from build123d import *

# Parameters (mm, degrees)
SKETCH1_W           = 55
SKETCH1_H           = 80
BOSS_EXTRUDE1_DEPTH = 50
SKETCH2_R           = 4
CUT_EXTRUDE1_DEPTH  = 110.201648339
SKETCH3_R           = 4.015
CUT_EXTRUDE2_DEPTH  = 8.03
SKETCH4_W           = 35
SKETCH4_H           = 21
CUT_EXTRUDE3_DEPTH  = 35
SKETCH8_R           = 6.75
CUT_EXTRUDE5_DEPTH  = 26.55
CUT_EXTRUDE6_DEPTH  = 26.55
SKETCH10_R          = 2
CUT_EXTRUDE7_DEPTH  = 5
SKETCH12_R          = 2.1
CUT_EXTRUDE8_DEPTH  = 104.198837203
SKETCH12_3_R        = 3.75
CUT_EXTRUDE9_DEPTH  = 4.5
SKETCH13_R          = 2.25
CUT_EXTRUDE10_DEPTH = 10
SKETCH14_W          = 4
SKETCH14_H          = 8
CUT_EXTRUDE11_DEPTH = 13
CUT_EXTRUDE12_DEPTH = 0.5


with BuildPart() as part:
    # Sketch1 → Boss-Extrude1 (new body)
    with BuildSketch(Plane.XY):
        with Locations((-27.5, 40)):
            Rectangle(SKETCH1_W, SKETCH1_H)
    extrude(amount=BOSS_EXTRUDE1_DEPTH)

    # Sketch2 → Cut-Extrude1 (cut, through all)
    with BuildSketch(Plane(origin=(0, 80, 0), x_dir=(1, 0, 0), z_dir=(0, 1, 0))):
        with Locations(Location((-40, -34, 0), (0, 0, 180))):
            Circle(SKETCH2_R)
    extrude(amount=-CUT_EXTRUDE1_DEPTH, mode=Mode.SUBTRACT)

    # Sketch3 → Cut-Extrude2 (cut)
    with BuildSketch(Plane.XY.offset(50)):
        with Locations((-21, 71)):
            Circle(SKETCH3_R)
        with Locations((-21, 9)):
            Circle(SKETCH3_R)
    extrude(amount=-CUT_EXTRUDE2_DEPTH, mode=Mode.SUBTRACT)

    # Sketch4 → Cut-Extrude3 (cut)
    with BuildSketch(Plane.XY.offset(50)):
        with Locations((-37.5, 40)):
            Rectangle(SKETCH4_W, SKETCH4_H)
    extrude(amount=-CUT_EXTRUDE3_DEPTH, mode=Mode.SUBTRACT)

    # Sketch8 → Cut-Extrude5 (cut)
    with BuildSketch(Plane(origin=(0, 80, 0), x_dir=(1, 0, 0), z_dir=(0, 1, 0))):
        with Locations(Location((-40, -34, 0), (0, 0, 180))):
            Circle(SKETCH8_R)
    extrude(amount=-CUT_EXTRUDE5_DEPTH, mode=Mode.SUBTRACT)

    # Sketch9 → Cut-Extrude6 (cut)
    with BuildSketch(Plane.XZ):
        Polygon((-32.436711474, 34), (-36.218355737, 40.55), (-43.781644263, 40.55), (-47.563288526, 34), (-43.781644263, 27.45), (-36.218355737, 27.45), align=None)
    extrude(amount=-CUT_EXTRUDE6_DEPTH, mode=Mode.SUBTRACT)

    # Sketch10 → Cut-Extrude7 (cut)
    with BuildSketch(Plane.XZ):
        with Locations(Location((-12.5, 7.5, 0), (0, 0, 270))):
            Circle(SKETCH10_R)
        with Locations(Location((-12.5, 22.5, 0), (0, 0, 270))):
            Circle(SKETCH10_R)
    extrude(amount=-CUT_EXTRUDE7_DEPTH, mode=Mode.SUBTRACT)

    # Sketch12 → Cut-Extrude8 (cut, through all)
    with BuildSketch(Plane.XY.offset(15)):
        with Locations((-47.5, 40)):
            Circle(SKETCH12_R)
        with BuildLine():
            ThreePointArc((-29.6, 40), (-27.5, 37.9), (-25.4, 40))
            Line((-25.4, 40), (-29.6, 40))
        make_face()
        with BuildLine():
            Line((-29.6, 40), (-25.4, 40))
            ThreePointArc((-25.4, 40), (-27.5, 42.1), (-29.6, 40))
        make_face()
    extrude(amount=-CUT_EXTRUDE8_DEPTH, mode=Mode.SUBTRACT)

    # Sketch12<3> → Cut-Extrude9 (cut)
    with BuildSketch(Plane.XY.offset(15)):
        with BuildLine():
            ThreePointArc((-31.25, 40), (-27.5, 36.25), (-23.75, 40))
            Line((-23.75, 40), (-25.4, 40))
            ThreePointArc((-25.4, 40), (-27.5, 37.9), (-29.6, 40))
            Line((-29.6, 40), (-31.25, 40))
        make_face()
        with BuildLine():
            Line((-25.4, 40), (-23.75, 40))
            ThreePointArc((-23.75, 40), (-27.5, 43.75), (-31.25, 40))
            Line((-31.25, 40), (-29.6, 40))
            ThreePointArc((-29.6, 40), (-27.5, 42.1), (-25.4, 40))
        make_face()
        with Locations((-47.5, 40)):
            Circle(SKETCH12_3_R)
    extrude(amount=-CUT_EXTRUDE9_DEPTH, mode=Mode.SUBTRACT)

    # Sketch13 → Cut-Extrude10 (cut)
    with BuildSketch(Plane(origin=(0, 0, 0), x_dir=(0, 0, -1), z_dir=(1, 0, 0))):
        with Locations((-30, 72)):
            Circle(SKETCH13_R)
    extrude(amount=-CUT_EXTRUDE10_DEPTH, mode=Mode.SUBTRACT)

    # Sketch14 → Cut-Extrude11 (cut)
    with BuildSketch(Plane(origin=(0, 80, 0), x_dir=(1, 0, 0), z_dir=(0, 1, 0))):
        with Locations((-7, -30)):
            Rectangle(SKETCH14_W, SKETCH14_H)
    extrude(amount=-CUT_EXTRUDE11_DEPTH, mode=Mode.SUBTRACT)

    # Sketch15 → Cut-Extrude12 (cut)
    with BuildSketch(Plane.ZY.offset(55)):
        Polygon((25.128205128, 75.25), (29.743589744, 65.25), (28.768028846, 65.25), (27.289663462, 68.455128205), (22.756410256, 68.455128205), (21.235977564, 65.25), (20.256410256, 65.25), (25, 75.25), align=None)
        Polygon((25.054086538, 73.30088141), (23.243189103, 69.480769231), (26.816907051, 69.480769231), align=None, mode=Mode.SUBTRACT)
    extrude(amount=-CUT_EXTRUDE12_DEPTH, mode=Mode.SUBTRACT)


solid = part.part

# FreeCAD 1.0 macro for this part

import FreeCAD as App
import Part
import Sketcher
from FreeCAD import Vector
Q = App.Units.Quantity

doc = App.newDocument("Part")
params = doc.addObject("Spreadsheet::Sheet", "Params")
for row, (alias, value) in enumerate([
    ("sketch1_width", "55 mm"),
    ("sketch1_height", "80 mm"),
    ("pad1_length", "50 mm"),
    ("sketch2_diameter", "8 mm"),
    ("sketch3_diameter", "8.03 mm"),
    ("pocket2_length", "8.03 mm"),
    ("sketch4_width", "35 mm"),
    ("sketch4_height", "21 mm"),
    ("pocket3_length", "35 mm"),
    ("sketch5_diameter", "13.5 mm"),
    ("pocket4_length", "26.55 mm"),
    ("pocket5_length", "26.55 mm"),
    ("sketch7_diameter", "4 mm"),
    ("pocket6_length", "5 mm"),
    ("sketch8_diameter", "4.2 mm"),
    ("sketch9_diameter", "7.5 mm"),
    ("sketch9_diameter2", "4.2 mm"),
    ("pocket8_length", "4.5 mm"),
    ("sketch10_diameter", "4.5 mm"),
    ("pocket9_length", "10 mm"),
    ("sketch11_width", "4 mm"),
    ("sketch11_height", "8 mm"),
    ("pocket10_length", "13 mm"),
    ("pocket11_length", "0.5 mm"),
], start=1):
    params.set(f"A{row}", alias)
    params.set(f"B{row}", "=" + value)
    params.setAlias(f"B{row}", alias)

body = doc.addObject("PartDesign::Body", "Body")

# Sketch on XY plane
sketch1 = body.newObject("Sketcher::SketchObject", "Sketch")
sketch1.AttachmentSupport = (doc.getObject("XY_Plane"), [""])
sketch1.MapMode = "FlatFace"
sketch1.addGeometry([
    Part.LineSegment(Vector(-55, 80, 0), Vector(-55, 0, 0)),
    Part.LineSegment(Vector(-55, 0, 0), Vector(0, 0, 0)),
    Part.LineSegment(Vector(0, 0, 0), Vector(0, 80, 0)),
    Part.LineSegment(Vector(0, 80, 0), Vector(-55, 80, 0)),
], False)
sketch1.addConstraint([
    Sketcher.Constraint("Coincident", 0, 2, 1, 1),
    Sketcher.Constraint("Coincident", 1, 2, 2, 1),
    Sketcher.Constraint("Coincident", 2, 2, 3, 1),
    Sketcher.Constraint("Coincident", 3, 2, 0, 1),
    Sketcher.Constraint("Vertical", 0),
    Sketcher.Constraint("Horizontal", 1),
    Sketcher.Constraint("Vertical", 2),
    Sketcher.Constraint("Horizontal", 3),
    Sketcher.Constraint("Coincident", 1, 2, -1, 1),
    Sketcher.Constraint("DistanceX", 1, 1, 1, 2, Q("55 mm")),
    Sketcher.Constraint("DistanceY", 0, 2, 0, 1, Q("80 mm")),
])
sketch1.setExpression("Constraints[9]", "Params.sketch1_width")
sketch1.setExpression("Constraints[10]", "Params.sketch1_height")
pad1 = body.newObject("PartDesign::Pad", "Pad")
pad1.Profile = sketch1
pad1.setExpression("Length", "Params.pad1_length")

# Sketch on XZ plane
sketch2 = body.newObject("Sketcher::SketchObject", "Sketch001")
sketch2.AttachmentSupport = (doc.getObject("XZ_Plane"), [""])
sketch2.MapMode = "FlatFace"
sketch2.AttachmentOffset = App.Placement(Vector(0, 0, -80), App.Rotation())
sketch2.addGeometry(Part.Circle(Vector(-40, 34, 0), Vector(0, 0, 1), 4), False)
sketch2.addConstraint([
    Sketcher.Constraint("Diameter", 0, Q("8 mm")),
    Sketcher.Constraint("DistanceX", 0, 3, -1, 1, Q("40 mm")),
    Sketcher.Constraint("DistanceY", -1, 1, 0, 3, Q("34 mm")),
])
sketch2.setExpression("Constraints[0]", "Params.sketch2_diameter")
pocket1 = body.newObject("PartDesign::Pocket", "Pocket")
pocket1.Profile = sketch2
pocket1.Type = "ThroughAll"
pocket1.Reversed = True

# Sketch on XY plane
sketch3 = body.newObject("Sketcher::SketchObject", "Sketch002")
sketch3.AttachmentSupport = (doc.getObject("XY_Plane"), [""])
sketch3.MapMode = "FlatFace"
sketch3.AttachmentOffset = App.Placement(Vector(0, 0, 50), App.Rotation())
sketch3.addGeometry([
    Part.Circle(Vector(-21, 71, 0), Vector(0, 0, 1), 4.015),
    Part.Circle(Vector(-21, 9, 0), Vector(0, 0, 1), 4.015),
], False)
sketch3.addConstraint([
    Sketcher.Constraint("Equal", 0, 1),
    Sketcher.Constraint("Vertical", 0, 3, 1, 3),
    Sketcher.Constraint("Diameter", 0, Q("8.03 mm")),
    Sketcher.Constraint("DistanceX", 0, 3, -1, 1, Q("21 mm")),
    Sketcher.Constraint("DistanceY", -1, 1, 0, 3, Q("71 mm")),
    Sketcher.Constraint("DistanceY", -1, 1, 1, 3, Q("9 mm")),
])
sketch3.setExpression("Constraints[2]", "Params.sketch3_diameter")
pocket2 = body.newObject("PartDesign::Pocket", "Pocket001")
pocket2.Profile = sketch3
pocket2.setExpression("Length", "Params.pocket2_length")

# Sketch on XY plane
sketch4 = body.newObject("Sketcher::SketchObject", "Sketch003")
sketch4.AttachmentSupport = (doc.getObject("XY_Plane"), [""])
sketch4.MapMode = "FlatFace"
sketch4.AttachmentOffset = App.Placement(Vector(0, 0, 50), App.Rotation())
sketch4.addGeometry([
    Part.LineSegment(Vector(-55, 50.5, 0), Vector(-55, 29.5, 0)),
    Part.LineSegment(Vector(-55, 29.5, 0), Vector(-20, 29.5, 0)),
    Part.LineSegment(Vector(-20, 29.5, 0), Vector(-20, 50.5, 0)),
    Part.LineSegment(Vector(-20, 50.5, 0), Vector(-55, 50.5, 0)),
], False)
sketch4.addConstraint([
    Sketcher.Constraint("Coincident", 0, 2, 1, 1),
    Sketcher.Constraint("Coincident", 1, 2, 2, 1),
    Sketcher.Constraint("Coincident", 2, 2, 3, 1),
    Sketcher.Constraint("Coincident", 3, 2, 0, 1),
    Sketcher.Constraint("Vertical", 0),
    Sketcher.Constraint("Horizontal", 1),
    Sketcher.Constraint("Vertical", 2),
    Sketcher.Constraint("Horizontal", 3),
    Sketcher.Constraint("DistanceX", 1, 1, 1, 2, Q("35 mm")),
    Sketcher.Constraint("DistanceY", 0, 2, 0, 1, Q("21 mm")),
    Sketcher.Constraint("DistanceX", 0, 2, -1, 1, Q("55 mm")),
    Sketcher.Constraint("DistanceY", -1, 1, 0, 2, Q("29.5 mm")),
])
sketch4.setExpression("Constraints[8]", "Params.sketch4_width")
sketch4.setExpression("Constraints[9]", "Params.sketch4_height")
pocket3 = body.newObject("PartDesign::Pocket", "Pocket002")
pocket3.Profile = sketch4
pocket3.setExpression("Length", "Params.pocket3_length")

# Sketch on XZ plane
sketch5 = body.newObject("Sketcher::SketchObject", "Sketch004")
sketch5.AttachmentSupport = (doc.getObject("XZ_Plane"), [""])
sketch5.MapMode = "FlatFace"
sketch5.AttachmentOffset = App.Placement(Vector(0, 0, -80), App.Rotation())
sketch5.addGeometry(Part.Circle(Vector(-40, 34, 0), Vector(0, 0, 1), 6.75), False)
sketch5.addConstraint([
    Sketcher.Constraint("Diameter", 0, Q("13.5 mm")),
    Sketcher.Constraint("DistanceX", 0, 3, -1, 1, Q("40 mm")),
    Sketcher.Constraint("DistanceY", -1, 1, 0, 3, Q("34 mm")),
])
sketch5.setExpression("Constraints[0]", "Params.sketch5_diameter")
pocket4 = body.newObject("PartDesign::Pocket", "Pocket003")
pocket4.Profile = sketch5
pocket4.setExpression("Length", "Params.pocket4_length")
pocket4.Reversed = True

# Sketch on XZ plane
sketch6 = body.newObject("Sketcher::SketchObject", "Sketch005")
sketch6.AttachmentSupport = (doc.getObject("XZ_Plane"), [""])
sketch6.MapMode = "FlatFace"
sketch6.addGeometry([
    Part.LineSegment(Vector(-32.436711, 34, 0), Vector(-36.218356, 40.55, 0)),  # 0
    Part.LineSegment(Vector(-36.218356, 40.55, 0), Vector(-43.781644, 40.55, 0)),  # 1
    Part.LineSegment(Vector(-43.781644, 40.55, 0), Vector(-47.563289, 34, 0)),  # 2
    Part.LineSegment(Vector(-47.563289, 34, 0), Vector(-43.781644, 27.45, 0)),  # 3
    Part.LineSegment(Vector(-43.781644, 27.45, 0), Vector(-36.218356, 27.45, 0)),  # 4
    Part.LineSegment(Vector(-36.218356, 27.45, 0), Vector(-32.436711, 34, 0)),  # 5
], False)
sketch6.addConstraint([
    Sketcher.Constraint("Coincident", 0, 2, 1, 1),
    Sketcher.Constraint("Coincident", 1, 2, 2, 1),
    Sketcher.Constraint("Coincident", 2, 2, 3, 1),
    Sketcher.Constraint("Coincident", 3, 2, 4, 1),
    Sketcher.Constraint("Coincident", 4, 2, 5, 1),
    Sketcher.Constraint("Coincident", 5, 2, 0, 1),
    Sketcher.Constraint("Horizontal", 1),
    Sketcher.Constraint("Horizontal", 4),
    Sketcher.Constraint("Parallel", 0, 3),
    Sketcher.Constraint("Parallel", 2, 5),
    Sketcher.Constraint("Horizontal", 2, 2, 5, 2),
    Sketcher.Constraint("Vertical", 1, 2, 3, 2),
    Sketcher.Constraint("Vertical", 0, 2, 4, 2),
    Sketcher.Constraint("Angle", 0, Q("120 deg")),
    Sketcher.Constraint("DistanceY", -1, 1, 2, 2, Q("34 mm")),
    Sketcher.Constraint("DistanceY", 3, 2, 1, 2, Q("13.1 mm")),
    Sketcher.Constraint("DistanceX", 1, 2, 1, 1, Q("7.563289 mm")),
    Sketcher.Constraint("DistanceX", 2, 2, -1, 1, Q("47.563289 mm")),
])
pocket5 = body.newObject("PartDesign::Pocket", "Pocket004")
pocket5.Profile = sketch6
pocket5.setExpression("Length", "Params.pocket5_length")

# Sketch on XZ plane
sketch7 = body.newObject("Sketcher::SketchObject", "Sketch006")
sketch7.AttachmentSupport = (doc.getObject("XZ_Plane"), [""])
sketch7.MapMode = "FlatFace"
sketch7.addGeometry([
    Part.Circle(Vector(-12.5, 7.5, 0), Vector(0, 0, 1), 2),
    Part.Circle(Vector(-12.5, 22.5, 0), Vector(0, 0, 1), 2),
], False)
sketch7.addConstraint([
    Sketcher.Constraint("Equal", 0, 1),
    Sketcher.Constraint("Vertical", 0, 3, 1, 3),
    Sketcher.Constraint("Diameter", 0, Q("4 mm")),
    Sketcher.Constraint("DistanceY", 0, 3, 1, 3, Q("15 mm")),
    Sketcher.Constraint("DistanceX", 0, 3, -1, 1, Q("12.5 mm")),
    Sketcher.Constraint("DistanceY", -1, 1, 0, 3, Q("7.5 mm")),
])
sketch7.setExpression("Constraints[2]", "Params.sketch7_diameter")
pocket6 = body.newObject("PartDesign::Pocket", "Pocket005")
pocket6.Profile = sketch7
pocket6.setExpression("Length", "Params.pocket6_length")

# Sketch on XY plane
sketch8 = body.newObject("Sketcher::SketchObject", "Sketch007")
sketch8.AttachmentSupport = (doc.getObject("XY_Plane"), [""])
sketch8.MapMode = "FlatFace"
sketch8.AttachmentOffset = App.Placement(Vector(0, 0, 15), App.Rotation())
sketch8.addGeometry([
    Part.Circle(Vector(-47.5, 40, 0), Vector(0, 0, 1), 2.1),
    Part.Circle(Vector(-27.5, 40, 0), Vector(0, 0, 1), 2.1),
], False)
sketch8.addConstraint([
    Sketcher.Constraint("Equal", 0, 1),
    Sketcher.Constraint("Horizontal", 0, 3, 1, 3),
    Sketcher.Constraint("Diameter", 0, Q("4.2 mm")),
    Sketcher.Constraint("DistanceY", -1, 1, 0, 3, Q("40 mm")),
    Sketcher.Constraint("DistanceX", 0, 3, 1, 3, Q("20 mm")),
    Sketcher.Constraint("DistanceX", 0, 3, -1, 1, Q("47.5 mm")),
])
sketch8.setExpression("Constraints[2]", "Params.sketch8_diameter")
pocket7 = body.newObject("PartDesign::Pocket", "Pocket006")
pocket7.Profile = sketch8
pocket7.Type = "ThroughAll"

# Sketch on XY plane
sketch9 = body.newObject("Sketcher::SketchObject", "Sketch008")
sketch9.AttachmentSupport = (doc.getObject("XY_Plane"), [""])
sketch9.MapMode = "FlatFace"
sketch9.AttachmentOffset = App.Placement(Vector(0, 0, 15), App.Rotation())
sketch9.addGeometry([
    Part.Circle(Vector(-27.5, 40, 0), Vector(0, 0, 1), 3.75),
    Part.Circle(Vector(-27.5, 40, 0), Vector(0, 0, 1), 2.1),
    Part.Circle(Vector(-47.5, 40, 0), Vector(0, 0, 1), 3.75),
], False)
sketch9.addConstraint([
    Sketcher.Constraint("Coincident", 1, 3, 0, 3),
    Sketcher.Constraint("Equal", 0, 2),
    Sketcher.Constraint("Horizontal", 1, 3, 2, 3),
    Sketcher.Constraint("Diameter", 0, Q("7.5 mm")),
    Sketcher.Constraint("Diameter", 1, Q("4.2 mm")),
    Sketcher.Constraint("DistanceY", -1, 1, 0, 3, Q("40 mm")),
    Sketcher.Constraint("DistanceX", 2, 3, 0, 3, Q("20 mm")),
    Sketcher.Constraint("DistanceX", 0, 3, -1, 1, Q("27.5 mm")),
])
sketch9.setExpression("Constraints[3]", "Params.sketch9_diameter")
sketch9.setExpression("Constraints[4]", "Params.sketch9_diameter2")
pocket8 = body.newObject("PartDesign::Pocket", "Pocket007")
pocket8.Profile = sketch9
pocket8.setExpression("Length", "Params.pocket8_length")

# Sketch on YZ plane
sketch10 = body.newObject("Sketcher::SketchObject", "Sketch009")
sketch10.AttachmentSupport = (doc.getObject("YZ_Plane"), [""])
sketch10.MapMode = "FlatFace"
sketch10.addGeometry(Part.Circle(Vector(72, 30, 0), Vector(0, 0, 1), 2.25), False)
sketch10.addConstraint([
    Sketcher.Constraint("Diameter", 0, Q("4.5 mm")),
    Sketcher.Constraint("DistanceX", -1, 1, 0, 3, Q("72 mm")),
    Sketcher.Constraint("DistanceY", -1, 1, 0, 3, Q("30 mm")),
])
sketch10.setExpression("Constraints[0]", "Params.sketch10_diameter")
pocket9 = body.newObject("PartDesign::Pocket", "Pocket008")
pocket9.Profile = sketch10
pocket9.setExpression("Length", "Params.pocket9_length")

# Sketch on XZ plane
sketch11 = body.newObject("Sketcher::SketchObject", "Sketch010")
sketch11.AttachmentSupport = (doc.getObject("XZ_Plane"), [""])
sketch11.MapMode = "FlatFace"
sketch11.AttachmentOffset = App.Placement(Vector(0, 0, -80), App.Rotation())
sketch11.addGeometry([
    Part.LineSegment(Vector(-9, 26, 0), Vector(-9, 34, 0)),
    Part.LineSegment(Vector(-9, 34, 0), Vector(-5, 34, 0)),
    Part.LineSegment(Vector(-5, 34, 0), Vector(-5, 26, 0)),
    Part.LineSegment(Vector(-5, 26, 0), Vector(-9, 26, 0)),
], False)
sketch11.addConstraint([
    Sketcher.Constraint("Coincident", 0, 2, 1, 1),
    Sketcher.Constraint("Coincident", 1, 2, 2, 1),
    Sketcher.Constraint("Coincident", 2, 2, 3, 1),
    Sketcher.Constraint("Coincident", 3, 2, 0, 1),
    Sketcher.Constraint("Vertical", 0),
    Sketcher.Constraint("Horizontal", 1),
    Sketcher.Constraint("Vertical", 2),
    Sketcher.Constraint("Horizontal", 3),
    Sketcher.Constraint("DistanceX", 1, 1, 1, 2, Q("4 mm")),
    Sketcher.Constraint("DistanceY", 0, 1, 0, 2, Q("8 mm")),
    Sketcher.Constraint("DistanceX", 0, 2, -1, 1, Q("9 mm")),
    Sketcher.Constraint("DistanceY", -1, 1, 0, 2, Q("34 mm")),
])
sketch11.setExpression("Constraints[8]", "Params.sketch11_width")
sketch11.setExpression("Constraints[9]", "Params.sketch11_height")
pocket10 = body.newObject("PartDesign::Pocket", "Pocket009")
pocket10.Profile = sketch11
pocket10.setExpression("Length", "Params.pocket10_length")
pocket10.Reversed = True

# Sketch on YZ plane
sketch12 = body.newObject("Sketcher::SketchObject", "Sketch011")
sketch12.AttachmentSupport = (doc.getObject("YZ_Plane"), [""])
sketch12.MapMode = "FlatFace"
sketch12.AttachmentOffset = App.Placement(Vector(0, 0, -55), App.Rotation())
sketch12.addGeometry([
    Part.LineSegment(Vector(65.25, 29.74359, 0), Vector(75.25, 25.128205, 0)),  # 0
    Part.LineSegment(Vector(75.25, 25.128205, 0), Vector(75.25, 25, 0)),  # 1
    Part.LineSegment(Vector(75.25, 25, 0), Vector(65.25, 20.25641, 0)),  # 2
    Part.LineSegment(Vector(65.25, 20.25641, 0), Vector(65.25, 21.235978, 0)),  # 3
    Part.LineSegment(Vector(65.25, 21.235978, 0), Vector(68.455128, 22.75641, 0)),  # 4
    Part.LineSegment(Vector(68.455128, 22.75641, 0), Vector(68.455128, 27.289663, 0)),  # 5
    Part.LineSegment(Vector(68.455128, 27.289663, 0), Vector(65.25, 28.768029, 0)),  # 6
    Part.LineSegment(Vector(65.25, 28.768029, 0), Vector(65.25, 29.74359, 0)),  # 7
    Part.LineSegment(Vector(73.300881, 25.054087, 0), Vector(69.480769, 26.816907, 0)),  # 8
    Part.LineSegment(Vector(69.480769, 26.816907, 0), Vector(69.480769, 23.243189, 0)),  # 9
    Part.LineSegment(Vector(69.480769, 23.243189, 0), Vector(73.300881, 25.054087, 0)),  # 10
], False)
sketch12.addConstraint([
    Sketcher.Constraint("Coincident", 0, 2, 1, 1),
    Sketcher.Constraint("Coincident", 1, 2, 2, 1),
    Sketcher.Constraint("Coincident", 2, 2, 3, 1),
    Sketcher.Constraint("Coincident", 3, 2, 4, 1),
    Sketcher.Constraint("Coincident", 4, 2, 5, 1),
    Sketcher.Constraint("Coincident", 5, 2, 6, 1),
    Sketcher.Constraint("Coincident", 6, 2, 7, 1),
    Sketcher.Constraint("Coincident", 7, 2, 0, 1),
    Sketcher.Constraint("Coincident", 8, 2, 9, 1),
    Sketcher.Constraint("Coincident", 9, 2, 10, 1),
    Sketcher.Constraint("Coincident", 10, 2, 8, 1),
    Sketcher.Constraint("Vertical", 1),
    Sketcher.Constraint("Vertical", 3),
    Sketcher.Constraint("Vertical", 5),
    Sketcher.Constraint("Vertical", 7),
    Sketcher.Constraint("Vertical", 9),
    Sketcher.Constraint("Vertical", 3, 2, 6, 2),
    Sketcher.Constraint("DistanceY", -1, 1, 1, 2, Q("25 mm")),
    Sketcher.Constraint("DistanceX", 2, 2, 1, 2, Q("10 mm")),
    Sketcher.Constraint("DistanceY", 2, 2, 4, 2, Q("2.5 mm")),
    Sketcher.Constraint("DistanceX", -1, 1, 0, 2, Q("75.25 mm")),
    Sketcher.Constraint("Distance", 10, Q("4.227601 mm")),
    Sketcher.Constraint("DistanceY", 7, 1, 7, 2, Q("0.975561 mm")),
    Sketcher.Constraint("DistanceY", 0, 2, 8, 2, Q("1.688702 mm")),
    Sketcher.Constraint("Distance", 0, Q("11.013709 mm")),
    Sketcher.Constraint("Distance", 8, Q("4.207231 mm")),
    Sketcher.Constraint("DistanceY", 1, 2, 1, 1, Q("0.128205 mm")),
    Sketcher.Constraint("DistanceY", 3, 1, 3, 2, Q("0.979567 mm")),
    Sketcher.Constraint("DistanceY", 5, 1, 5, 2, Q("4.533253 mm")),
    Sketcher.Constraint("DistanceY", 9, 2, 9, 1, Q("3.573718 mm")),
    Sketcher.Constraint("DistanceY", -1, 1, 2, 2, Q("20.25641 mm")),
    Sketcher.Constraint("DistanceX", -1, 1, 4, 2, Q("68.455128 mm")),
    Sketcher.Constraint("DistanceX", -1, 1, 8, 2, Q("69.480769 mm")),
])
pocket11 = body.newObject("PartDesign::Pocket", "Pocket010")
pocket11.Profile = sketch12
pocket11.setExpression("Length", "Params.pocket11_length")
pocket11.Reversed = True

doc.recompute()
